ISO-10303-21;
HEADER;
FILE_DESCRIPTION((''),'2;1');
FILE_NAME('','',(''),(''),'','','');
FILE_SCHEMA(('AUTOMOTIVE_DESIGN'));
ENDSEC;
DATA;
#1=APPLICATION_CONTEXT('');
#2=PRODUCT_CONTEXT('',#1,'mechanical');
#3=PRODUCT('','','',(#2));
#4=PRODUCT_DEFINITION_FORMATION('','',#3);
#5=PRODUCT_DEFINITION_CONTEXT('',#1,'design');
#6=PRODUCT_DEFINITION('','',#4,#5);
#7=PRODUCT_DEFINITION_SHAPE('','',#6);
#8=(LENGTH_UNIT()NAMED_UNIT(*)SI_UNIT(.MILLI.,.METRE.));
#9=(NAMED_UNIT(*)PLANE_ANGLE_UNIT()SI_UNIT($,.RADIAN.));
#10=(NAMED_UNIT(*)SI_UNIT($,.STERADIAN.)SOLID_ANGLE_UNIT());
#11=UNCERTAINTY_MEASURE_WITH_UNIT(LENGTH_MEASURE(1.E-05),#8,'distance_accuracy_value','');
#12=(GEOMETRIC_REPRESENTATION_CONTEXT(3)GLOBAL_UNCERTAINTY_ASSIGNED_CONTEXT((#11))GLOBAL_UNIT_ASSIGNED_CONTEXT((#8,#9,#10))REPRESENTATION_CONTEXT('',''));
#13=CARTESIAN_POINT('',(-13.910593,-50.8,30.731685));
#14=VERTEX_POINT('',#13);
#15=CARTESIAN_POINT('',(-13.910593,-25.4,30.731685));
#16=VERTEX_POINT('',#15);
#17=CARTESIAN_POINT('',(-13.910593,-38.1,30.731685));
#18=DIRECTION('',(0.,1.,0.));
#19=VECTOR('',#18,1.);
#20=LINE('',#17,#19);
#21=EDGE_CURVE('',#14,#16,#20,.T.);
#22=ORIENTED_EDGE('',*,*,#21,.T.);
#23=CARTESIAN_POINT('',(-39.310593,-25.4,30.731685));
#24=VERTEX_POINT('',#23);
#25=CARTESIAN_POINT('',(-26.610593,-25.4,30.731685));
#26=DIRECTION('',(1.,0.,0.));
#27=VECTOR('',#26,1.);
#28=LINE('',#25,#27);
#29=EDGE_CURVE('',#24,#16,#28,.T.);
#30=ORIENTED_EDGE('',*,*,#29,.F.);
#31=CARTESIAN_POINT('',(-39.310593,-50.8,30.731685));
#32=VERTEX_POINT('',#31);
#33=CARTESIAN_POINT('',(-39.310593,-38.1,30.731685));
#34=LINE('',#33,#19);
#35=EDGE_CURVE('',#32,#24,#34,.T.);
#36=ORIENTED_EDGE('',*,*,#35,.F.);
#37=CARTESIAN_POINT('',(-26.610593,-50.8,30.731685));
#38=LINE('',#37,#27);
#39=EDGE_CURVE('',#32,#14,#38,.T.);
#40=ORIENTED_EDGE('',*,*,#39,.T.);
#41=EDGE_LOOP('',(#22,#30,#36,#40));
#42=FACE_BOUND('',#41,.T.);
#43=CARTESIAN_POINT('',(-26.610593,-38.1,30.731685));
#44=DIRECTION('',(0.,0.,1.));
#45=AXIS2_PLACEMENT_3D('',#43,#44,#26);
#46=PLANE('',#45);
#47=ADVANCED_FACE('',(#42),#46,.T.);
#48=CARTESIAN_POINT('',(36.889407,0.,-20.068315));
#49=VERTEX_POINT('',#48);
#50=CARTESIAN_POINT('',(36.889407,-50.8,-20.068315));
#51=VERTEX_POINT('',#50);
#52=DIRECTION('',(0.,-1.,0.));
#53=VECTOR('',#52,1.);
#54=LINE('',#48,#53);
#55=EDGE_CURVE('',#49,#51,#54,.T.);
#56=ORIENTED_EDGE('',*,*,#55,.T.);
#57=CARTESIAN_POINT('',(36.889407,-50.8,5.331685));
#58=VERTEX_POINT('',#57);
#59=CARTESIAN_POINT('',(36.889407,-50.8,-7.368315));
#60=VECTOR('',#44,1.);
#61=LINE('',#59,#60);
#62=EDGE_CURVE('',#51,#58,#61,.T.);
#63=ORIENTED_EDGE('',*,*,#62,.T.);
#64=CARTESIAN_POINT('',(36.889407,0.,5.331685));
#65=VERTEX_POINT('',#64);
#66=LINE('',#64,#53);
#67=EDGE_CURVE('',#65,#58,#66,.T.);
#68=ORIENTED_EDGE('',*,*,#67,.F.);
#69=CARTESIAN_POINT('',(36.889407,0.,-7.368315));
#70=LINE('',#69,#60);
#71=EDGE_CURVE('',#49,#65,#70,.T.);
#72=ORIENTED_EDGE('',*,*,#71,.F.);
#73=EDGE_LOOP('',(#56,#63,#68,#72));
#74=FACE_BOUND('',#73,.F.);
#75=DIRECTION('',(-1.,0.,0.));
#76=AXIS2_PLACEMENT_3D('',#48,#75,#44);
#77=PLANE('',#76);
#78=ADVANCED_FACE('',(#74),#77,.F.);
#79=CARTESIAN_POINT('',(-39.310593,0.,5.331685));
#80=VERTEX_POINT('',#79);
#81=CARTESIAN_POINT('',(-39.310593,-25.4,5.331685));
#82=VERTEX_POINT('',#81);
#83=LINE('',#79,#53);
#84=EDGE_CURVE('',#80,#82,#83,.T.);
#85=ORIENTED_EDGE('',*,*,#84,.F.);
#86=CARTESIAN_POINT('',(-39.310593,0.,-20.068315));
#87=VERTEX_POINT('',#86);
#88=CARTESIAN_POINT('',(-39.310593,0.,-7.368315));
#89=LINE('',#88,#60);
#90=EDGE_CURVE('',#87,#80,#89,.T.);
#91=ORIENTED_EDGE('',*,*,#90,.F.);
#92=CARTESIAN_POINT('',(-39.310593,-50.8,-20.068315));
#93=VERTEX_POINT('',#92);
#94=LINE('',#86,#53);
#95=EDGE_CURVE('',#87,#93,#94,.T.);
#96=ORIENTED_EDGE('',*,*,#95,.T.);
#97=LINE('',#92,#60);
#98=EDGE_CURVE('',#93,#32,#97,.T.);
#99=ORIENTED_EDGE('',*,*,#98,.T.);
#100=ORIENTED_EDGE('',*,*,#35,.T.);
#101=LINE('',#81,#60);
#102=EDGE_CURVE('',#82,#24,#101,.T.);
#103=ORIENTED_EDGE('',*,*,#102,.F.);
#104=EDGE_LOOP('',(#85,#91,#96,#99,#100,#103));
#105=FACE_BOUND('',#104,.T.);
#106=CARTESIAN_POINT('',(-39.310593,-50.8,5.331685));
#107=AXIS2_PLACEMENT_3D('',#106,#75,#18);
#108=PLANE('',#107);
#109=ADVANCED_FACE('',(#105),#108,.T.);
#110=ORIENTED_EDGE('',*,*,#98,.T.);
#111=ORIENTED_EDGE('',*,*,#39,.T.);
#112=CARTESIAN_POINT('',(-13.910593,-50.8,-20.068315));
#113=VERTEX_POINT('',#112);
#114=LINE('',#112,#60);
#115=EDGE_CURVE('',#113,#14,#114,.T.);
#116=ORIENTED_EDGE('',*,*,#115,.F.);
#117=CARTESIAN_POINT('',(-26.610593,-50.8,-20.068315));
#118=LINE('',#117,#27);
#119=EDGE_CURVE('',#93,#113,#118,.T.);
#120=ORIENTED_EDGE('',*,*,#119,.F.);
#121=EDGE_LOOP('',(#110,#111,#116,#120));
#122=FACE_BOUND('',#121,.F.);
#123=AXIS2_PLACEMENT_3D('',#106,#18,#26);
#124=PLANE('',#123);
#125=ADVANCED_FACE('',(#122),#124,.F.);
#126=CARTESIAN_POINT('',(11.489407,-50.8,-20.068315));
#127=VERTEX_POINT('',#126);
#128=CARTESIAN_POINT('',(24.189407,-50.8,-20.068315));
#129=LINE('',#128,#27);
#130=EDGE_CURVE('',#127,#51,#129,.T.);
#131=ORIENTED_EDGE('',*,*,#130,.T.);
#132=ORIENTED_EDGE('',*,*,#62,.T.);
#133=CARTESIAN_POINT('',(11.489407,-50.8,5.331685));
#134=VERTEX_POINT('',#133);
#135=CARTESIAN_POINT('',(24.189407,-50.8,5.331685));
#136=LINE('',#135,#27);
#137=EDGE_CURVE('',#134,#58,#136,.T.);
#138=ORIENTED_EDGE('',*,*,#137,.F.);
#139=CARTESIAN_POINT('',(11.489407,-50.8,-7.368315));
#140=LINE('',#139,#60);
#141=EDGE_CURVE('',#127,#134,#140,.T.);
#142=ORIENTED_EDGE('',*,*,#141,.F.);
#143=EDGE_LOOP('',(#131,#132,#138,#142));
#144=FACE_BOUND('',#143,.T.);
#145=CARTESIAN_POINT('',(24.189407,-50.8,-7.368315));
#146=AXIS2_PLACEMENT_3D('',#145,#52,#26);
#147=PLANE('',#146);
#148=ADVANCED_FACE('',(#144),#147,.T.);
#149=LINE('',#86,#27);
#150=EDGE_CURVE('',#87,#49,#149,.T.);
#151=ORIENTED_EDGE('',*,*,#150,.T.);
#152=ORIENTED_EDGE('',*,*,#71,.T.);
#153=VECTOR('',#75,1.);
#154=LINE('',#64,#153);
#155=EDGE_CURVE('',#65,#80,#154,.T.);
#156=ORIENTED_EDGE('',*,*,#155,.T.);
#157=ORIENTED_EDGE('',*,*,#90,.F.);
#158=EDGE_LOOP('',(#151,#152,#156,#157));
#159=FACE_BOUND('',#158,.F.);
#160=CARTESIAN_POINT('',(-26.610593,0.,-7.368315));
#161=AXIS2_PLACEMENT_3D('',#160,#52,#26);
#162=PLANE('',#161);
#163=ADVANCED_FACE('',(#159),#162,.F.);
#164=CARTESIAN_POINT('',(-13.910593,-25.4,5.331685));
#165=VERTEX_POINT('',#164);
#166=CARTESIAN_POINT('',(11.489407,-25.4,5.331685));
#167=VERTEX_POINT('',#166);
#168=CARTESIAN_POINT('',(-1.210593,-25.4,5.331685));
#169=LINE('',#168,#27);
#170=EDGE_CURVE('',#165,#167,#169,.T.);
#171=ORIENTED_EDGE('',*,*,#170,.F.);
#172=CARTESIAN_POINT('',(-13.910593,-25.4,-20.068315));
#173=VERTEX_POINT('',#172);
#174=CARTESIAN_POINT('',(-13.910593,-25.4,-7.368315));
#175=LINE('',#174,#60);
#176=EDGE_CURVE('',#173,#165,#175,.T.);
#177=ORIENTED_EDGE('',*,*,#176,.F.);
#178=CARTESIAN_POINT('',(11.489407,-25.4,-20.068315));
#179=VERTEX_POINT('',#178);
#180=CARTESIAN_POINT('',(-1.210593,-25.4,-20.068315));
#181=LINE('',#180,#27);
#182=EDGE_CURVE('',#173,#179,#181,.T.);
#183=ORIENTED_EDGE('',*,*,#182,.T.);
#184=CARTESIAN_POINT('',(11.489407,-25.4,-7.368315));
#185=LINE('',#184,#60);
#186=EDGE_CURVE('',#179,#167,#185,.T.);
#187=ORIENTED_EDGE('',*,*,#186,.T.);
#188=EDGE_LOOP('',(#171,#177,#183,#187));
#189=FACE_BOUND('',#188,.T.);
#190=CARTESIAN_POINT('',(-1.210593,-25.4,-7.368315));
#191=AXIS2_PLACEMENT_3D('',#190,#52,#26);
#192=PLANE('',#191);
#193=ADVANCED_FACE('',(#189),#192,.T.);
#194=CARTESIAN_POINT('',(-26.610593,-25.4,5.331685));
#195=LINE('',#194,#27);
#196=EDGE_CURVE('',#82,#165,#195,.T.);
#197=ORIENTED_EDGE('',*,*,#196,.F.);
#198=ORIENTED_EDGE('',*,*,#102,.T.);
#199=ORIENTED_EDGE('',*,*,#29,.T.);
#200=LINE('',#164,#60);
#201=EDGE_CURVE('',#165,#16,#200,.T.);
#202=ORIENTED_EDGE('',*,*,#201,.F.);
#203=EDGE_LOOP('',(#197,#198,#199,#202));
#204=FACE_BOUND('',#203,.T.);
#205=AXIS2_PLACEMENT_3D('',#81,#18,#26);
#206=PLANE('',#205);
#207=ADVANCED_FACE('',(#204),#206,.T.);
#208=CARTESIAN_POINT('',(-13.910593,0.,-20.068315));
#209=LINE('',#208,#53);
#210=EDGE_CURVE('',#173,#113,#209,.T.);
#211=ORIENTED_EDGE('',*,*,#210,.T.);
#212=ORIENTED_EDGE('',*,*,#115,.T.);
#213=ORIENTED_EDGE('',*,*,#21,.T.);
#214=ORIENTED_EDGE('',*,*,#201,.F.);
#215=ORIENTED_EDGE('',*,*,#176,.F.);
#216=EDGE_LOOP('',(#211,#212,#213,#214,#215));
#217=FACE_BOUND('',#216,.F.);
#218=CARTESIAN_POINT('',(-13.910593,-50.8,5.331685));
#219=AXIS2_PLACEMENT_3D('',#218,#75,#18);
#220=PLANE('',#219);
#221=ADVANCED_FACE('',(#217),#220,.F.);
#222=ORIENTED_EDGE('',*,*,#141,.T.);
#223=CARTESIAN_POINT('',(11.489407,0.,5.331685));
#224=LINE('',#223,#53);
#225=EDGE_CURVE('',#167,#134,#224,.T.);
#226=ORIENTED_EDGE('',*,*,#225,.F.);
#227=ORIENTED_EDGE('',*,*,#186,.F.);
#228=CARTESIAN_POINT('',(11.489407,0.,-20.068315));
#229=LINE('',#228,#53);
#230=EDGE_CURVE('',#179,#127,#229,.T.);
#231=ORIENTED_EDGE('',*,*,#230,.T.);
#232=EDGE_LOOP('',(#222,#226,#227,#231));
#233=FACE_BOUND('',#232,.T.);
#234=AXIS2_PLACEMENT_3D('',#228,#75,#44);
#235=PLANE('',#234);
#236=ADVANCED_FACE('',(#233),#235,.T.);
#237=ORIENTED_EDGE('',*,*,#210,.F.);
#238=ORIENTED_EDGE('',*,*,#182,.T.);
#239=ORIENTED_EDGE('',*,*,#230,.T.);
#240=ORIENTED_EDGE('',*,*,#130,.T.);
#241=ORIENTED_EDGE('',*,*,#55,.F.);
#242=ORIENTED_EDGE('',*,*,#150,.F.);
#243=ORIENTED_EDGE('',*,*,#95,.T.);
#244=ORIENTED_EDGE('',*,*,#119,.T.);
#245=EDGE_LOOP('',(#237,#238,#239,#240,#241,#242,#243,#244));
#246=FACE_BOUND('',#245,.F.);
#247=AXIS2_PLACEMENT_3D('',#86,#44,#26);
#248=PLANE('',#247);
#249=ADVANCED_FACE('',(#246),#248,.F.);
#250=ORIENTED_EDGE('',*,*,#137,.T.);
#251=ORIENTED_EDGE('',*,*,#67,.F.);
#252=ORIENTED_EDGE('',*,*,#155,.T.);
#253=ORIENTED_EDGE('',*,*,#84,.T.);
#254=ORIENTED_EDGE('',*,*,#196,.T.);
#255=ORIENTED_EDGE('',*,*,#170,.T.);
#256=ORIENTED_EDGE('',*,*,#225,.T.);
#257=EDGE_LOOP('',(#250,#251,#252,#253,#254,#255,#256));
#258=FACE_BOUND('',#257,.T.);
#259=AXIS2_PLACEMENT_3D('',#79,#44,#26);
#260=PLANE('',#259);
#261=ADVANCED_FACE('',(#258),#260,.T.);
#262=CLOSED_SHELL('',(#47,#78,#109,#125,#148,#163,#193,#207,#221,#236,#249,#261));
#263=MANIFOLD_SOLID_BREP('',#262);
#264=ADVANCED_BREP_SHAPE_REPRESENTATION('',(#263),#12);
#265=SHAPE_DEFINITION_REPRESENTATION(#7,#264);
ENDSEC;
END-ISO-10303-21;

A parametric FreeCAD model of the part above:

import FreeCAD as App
import Part
import Sketcher
from FreeCAD import Vector
Q = App.Units.Quantity

doc = App.newDocument("Part")
body = doc.addObject("PartDesign::Body", "Body")

sketch1 = body.newObject("Sketcher::SketchObject", "Sketch")
sketch1.AttachmentSupport = (doc.getObject("XZ_Plane"), [""])
sketch1.MapMode = "FlatFace"
sketch1.addGeometry([
    Part.LineSegment(Vector(-14, 5, 0), Vector(-14, -20, 0)),
    Part.LineSegment(Vector(-14, -20, 0), Vector(11, -20, 0)),
    Part.LineSegment(Vector(11, -20, 0), Vector(11, 5, 0)),
    Part.LineSegment(Vector(11, 5, 0), Vector(-14, 5, 0)),
], False)
sketch1.addConstraint([
    Sketcher.Constraint("Coincident", 0, 2, 1, 1),
    Sketcher.Constraint("Coincident", 1, 2, 2, 1),
    Sketcher.Constraint("Coincident", 2, 2, 3, 1),
    Sketcher.Constraint("Coincident", 3, 2, 0, 1),
    Sketcher.Constraint("Vertical", 0),
    Sketcher.Constraint("Horizontal", 1),
    Sketcher.Constraint("Vertical", 2),
    Sketcher.Constraint("Horizontal", 3),
    Sketcher.Constraint("Equal", 3, 0),
    Sketcher.Constraint("DistanceX", 1, 1, 1, 2, Q("1 in")),
    Sketcher.Constraint("DistanceX", 0, 2, -1, 1, Q("13.910593 mm")),
    Sketcher.Constraint("DistanceY", 0, 2, -1, 1, Q("20.068315 mm")),
])
pad1 = body.newObject("PartDesign::Pad", "Pad")
pad1.Profile = sketch1
pad1.Length = Q("1 in")

sketch2 = body.newObject("Sketcher::SketchObject", "Sketch001")
sketch2.AttachmentSupport = (doc.getObject("XZ_Plane"), [""])
sketch2.MapMode = "FlatFace"
sketch2.addGeometry([
    Part.LineSegment(Vector(-39, 5, 0), Vector(-39, -20, 0)),
    Part.LineSegment(Vector(-39, -20, 0), Vector(-14, -20, 0)),
    Part.LineSegment(Vector(-14, -20, 0), Vector(-14, 5, 0)),
    Part.LineSegment(Vector(-14, 5, 0), Vector(-39, 5, 0)),
    Part.LineSegment(Vector(11, 5, 0), Vector(11, -20, 0)),
    Part.LineSegment(Vector(11, -20, 0), Vector(37, -20, 0)),
    Part.LineSegment(Vector(37, -20, 0), Vector(37, 5, 0)),
    Part.LineSegment(Vector(37, 5, 0), Vector(11, 5, 0)),
], False)
sketch2.addConstraint([
    Sketcher.Constraint("Coincident", 0, 2, 1, 1),
    Sketcher.Constraint("Coincident", 1, 2, 2, 1),
    Sketcher.Constraint("Coincident", 2, 2, 3, 1),
    Sketcher.Constraint("Coincident", 3, 2, 0, 1),
    Sketcher.Constraint("Coincident", 4, 2, 5, 1),
    Sketcher.Constraint("Coincident", 5, 2, 6, 1),
    Sketcher.Constraint("Coincident", 6, 2, 7, 1),
    Sketcher.Constraint("Coincident", 7, 2, 4, 1),
    Sketcher.Constraint("Vertical", 0),
    Sketcher.Constraint("Horizontal", 1),
    Sketcher.Constraint("Vertical", 2),
    Sketcher.Constraint("Horizontal", 3),
    Sketcher.Constraint("Vertical", 4),
    Sketcher.Constraint("Horizontal", 5),
    Sketcher.Constraint("Vertical", 6),
    Sketcher.Constraint("Horizontal", 7),
    Sketcher.Constraint("Horizontal", 1, 2, 4, 2),
    Sketcher.Constraint("Horizontal", 3, 2, 6, 2),
    Sketcher.Constraint("Equal", 3, 5),
    Sketcher.Constraint("Equal", 7, 0),
    Sketcher.Constraint("DistanceX", 1, 1, 1, 2, Q("1 in")),
    Sketcher.Constraint("DistanceX", 1, 2, 4, 2, Q("1 in")),
    Sketcher.Constraint("DistanceX", 0, 2, -1, 1, Q("39.310593 mm")),
    Sketcher.Constraint("DistanceY", 0, 2, -1, 1, Q("20.068315 mm")),
])
pad2 = body.newObject("PartDesign::Pad", "Pad001")
pad2.Profile = sketch2
pad2.Length = Q("2 in")

sketch3 = body.newObject("Sketcher::SketchObject", "Sketch002")
sketch3.AttachmentSupport = (doc.getObject("XY_Plane"), [""])
sketch3.MapMode = "FlatFace"
sketch3.AttachmentOffset = App.Placement(Vector(0, 0, 5.331685), App.Rotation())
sketch3.addGeometry([
    Part.LineSegment(Vector(-39, -25, 0), Vector(-39, -51, 0)),
    Part.LineSegment(Vector(-39, -51, 0), Vector(-14, -51, 0)),
    Part.LineSegment(Vector(-14, -51, 0), Vector(-14, -25, 0)),
    Part.LineSegment(Vector(-14, -25, 0), Vector(-39, -25, 0)),
], False)
sketch3.addConstraint([
    Sketcher.Constraint("Coincident", 0, 2, 1, 1),
    Sketcher.Constraint("Coincident", 1, 2, 2, 1),
    Sketcher.Constraint("Coincident", 2, 2, 3, 1),
    Sketcher.Constraint("Coincident", 3, 2, 0, 1),
    Sketcher.Constraint("Vertical", 0),
    Sketcher.Constraint("Horizontal", 1),
    Sketcher.Constraint("Vertical", 2),
    Sketcher.Constraint("Horizontal", 3),
    Sketcher.Constraint("Equal", 3, 0),
    Sketcher.Constraint("DistanceX", 1, 1, 1, 2, Q("1 in")),
    Sketcher.Constraint("DistanceY", 0, 2, -1, 1, Q("2 in")),
    Sketcher.Constraint("DistanceX", 0, 2, -1, 1, Q("39.310593 mm")),
])
pad3 = body.newObject("PartDesign::Pad", "Pad002")
pad3.Profile = sketch3
pad3.Length = Q("1 in")

doc.recompute()
